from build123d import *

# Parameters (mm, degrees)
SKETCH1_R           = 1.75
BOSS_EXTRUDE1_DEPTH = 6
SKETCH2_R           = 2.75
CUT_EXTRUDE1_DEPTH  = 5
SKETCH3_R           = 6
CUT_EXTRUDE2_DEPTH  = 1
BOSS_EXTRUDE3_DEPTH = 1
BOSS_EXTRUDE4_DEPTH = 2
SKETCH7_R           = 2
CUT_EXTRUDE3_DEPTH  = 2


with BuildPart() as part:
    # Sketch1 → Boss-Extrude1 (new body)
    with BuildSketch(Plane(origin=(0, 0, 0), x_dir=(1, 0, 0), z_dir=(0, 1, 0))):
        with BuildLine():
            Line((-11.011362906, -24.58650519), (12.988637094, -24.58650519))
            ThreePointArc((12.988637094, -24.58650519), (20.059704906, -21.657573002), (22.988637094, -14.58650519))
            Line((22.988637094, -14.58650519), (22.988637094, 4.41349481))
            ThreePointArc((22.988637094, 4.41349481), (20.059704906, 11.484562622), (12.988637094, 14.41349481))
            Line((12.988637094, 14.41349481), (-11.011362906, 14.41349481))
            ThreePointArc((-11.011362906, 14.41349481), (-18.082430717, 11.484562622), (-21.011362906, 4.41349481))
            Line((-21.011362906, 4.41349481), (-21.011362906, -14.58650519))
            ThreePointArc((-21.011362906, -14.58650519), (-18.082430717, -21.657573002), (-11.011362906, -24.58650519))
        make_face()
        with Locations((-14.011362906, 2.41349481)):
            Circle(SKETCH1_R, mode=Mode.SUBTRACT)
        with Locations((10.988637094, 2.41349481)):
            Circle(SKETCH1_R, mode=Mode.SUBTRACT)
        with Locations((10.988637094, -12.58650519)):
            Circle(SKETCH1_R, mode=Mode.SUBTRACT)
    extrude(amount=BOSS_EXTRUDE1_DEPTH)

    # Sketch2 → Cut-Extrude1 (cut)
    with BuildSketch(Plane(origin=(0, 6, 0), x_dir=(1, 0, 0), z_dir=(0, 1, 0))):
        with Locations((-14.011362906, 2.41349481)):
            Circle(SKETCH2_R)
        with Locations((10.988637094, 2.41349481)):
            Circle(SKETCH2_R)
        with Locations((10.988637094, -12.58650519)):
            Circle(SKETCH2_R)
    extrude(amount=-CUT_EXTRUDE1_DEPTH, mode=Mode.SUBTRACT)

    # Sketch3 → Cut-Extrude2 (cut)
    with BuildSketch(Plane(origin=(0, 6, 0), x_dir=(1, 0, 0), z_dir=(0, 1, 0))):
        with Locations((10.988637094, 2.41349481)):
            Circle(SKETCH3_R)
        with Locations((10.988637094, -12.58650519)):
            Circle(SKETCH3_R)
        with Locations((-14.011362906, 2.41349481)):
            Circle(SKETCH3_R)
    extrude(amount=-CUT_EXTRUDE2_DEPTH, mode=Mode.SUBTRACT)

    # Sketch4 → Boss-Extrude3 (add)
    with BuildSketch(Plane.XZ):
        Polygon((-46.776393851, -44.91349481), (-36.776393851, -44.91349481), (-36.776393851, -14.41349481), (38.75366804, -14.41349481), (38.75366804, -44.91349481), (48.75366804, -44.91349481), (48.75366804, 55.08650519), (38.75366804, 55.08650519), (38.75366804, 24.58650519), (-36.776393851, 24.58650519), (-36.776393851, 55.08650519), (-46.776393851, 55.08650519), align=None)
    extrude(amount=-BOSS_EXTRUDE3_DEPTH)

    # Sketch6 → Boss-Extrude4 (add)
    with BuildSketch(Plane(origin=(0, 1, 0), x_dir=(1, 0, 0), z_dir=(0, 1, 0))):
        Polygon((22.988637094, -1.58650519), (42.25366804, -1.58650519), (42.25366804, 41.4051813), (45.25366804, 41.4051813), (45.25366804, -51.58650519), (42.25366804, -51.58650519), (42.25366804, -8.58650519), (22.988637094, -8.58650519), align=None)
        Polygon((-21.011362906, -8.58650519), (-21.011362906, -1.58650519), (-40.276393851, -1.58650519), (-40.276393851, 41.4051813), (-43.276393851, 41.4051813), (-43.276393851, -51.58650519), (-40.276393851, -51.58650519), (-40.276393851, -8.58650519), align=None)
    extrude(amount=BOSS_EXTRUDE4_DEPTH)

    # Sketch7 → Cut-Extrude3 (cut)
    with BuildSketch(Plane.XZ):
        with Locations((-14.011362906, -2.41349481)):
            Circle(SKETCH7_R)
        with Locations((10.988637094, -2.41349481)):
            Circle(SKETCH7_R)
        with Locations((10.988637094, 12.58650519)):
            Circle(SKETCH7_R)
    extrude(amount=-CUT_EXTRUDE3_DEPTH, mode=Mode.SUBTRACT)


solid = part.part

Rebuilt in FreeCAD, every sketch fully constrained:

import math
import FreeCAD as App
import Part
import Sketcher
from FreeCAD import Vector
Q = App.Units.Quantity


def add_polygon(sketch, points):
    """Adds a closed chain of lines whose ends are joined by coincident constraints."""
    first, n = sketch.GeometryCount, len(points)
    for a, b in zip(points, points[1:] + points[:1]):
        sketch.addGeometry(Part.LineSegment(App.Vector(*a, 0), App.Vector(*b, 0)), False)
    for i in range(n):
        sketch.addConstraint(Sketcher.Constraint("Coincident", first + i, 2, first + (i + 1) % n, 1))

doc = App.newDocument("Part")
body = doc.addObject("PartDesign::Body", "Body")

sketch1 = body.newObject("Sketcher::SketchObject", "Sketch")
sketch1.AttachmentSupport = (doc.getObject("XZ_Plane"), [""])
sketch1.MapMode = "FlatFace"
sketch1.addGeometry(Part.LineSegment(Vector(-11.011363, 24.586505, 0), Vector(12.988637, 24.586505, 0)), False)
sketch1.addGeometry(Part.ArcOfCircle(Part.Circle(Vector(12.988637, 14.586505, 0), Vector(0, 0, 1), 10), math.radians(0), math.radians(90)), False)
sketch1.addGeometry(Part.LineSegment(Vector(22.988637, 14.586505, 0), Vector(22.988637, -4.413495, 0)), False)
sketch1.addGeometry(Part.ArcOfCircle(Part.Circle(Vector(12.988637, -4.413495, 0), Vector(0, 0, 1), 10), math.radians(-90), math.radians(0)), False)
sketch1.addGeometry(Part.LineSegment(Vector(12.988637, -14.413495, 0), Vector(-11.011363, -14.413495, 0)), False)
sketch1.addGeometry(Part.ArcOfCircle(Part.Circle(Vector(-11.011363, -4.413495, 0), Vector(0, 0, 1), 10), math.radians(-180), math.radians(-90)), False)
sketch1.addGeometry(Part.LineSegment(Vector(-21.011363, -4.413495, 0), Vector(-21.011363, 14.586505, 0)), False)
sketch1.addGeometry(Part.ArcOfCircle(Part.Circle(Vector(-11.011363, 14.586505, 0), Vector(0, 0, 1), 10), math.radians(90), math.radians(180)), False)
sketch1.addGeometry(Part.Circle(Vector(10.988637, 12.586505, 0), Vector(0, 0, 1), 1.75), False)
sketch1.addGeometry(Part.Circle(Vector(-14.011363, -2.413495, 0), Vector(0, 0, 1), 1.75), False)
sketch1.addGeometry(Part.Circle(Vector(10.988637, -2.413495, 0), Vector(0, 0, 1), 1.75), False)
sketch1.addConstraint(Sketcher.Constraint("Tangent", 0, 2, 1, 2))
sketch1.addConstraint(Sketcher.Constraint("Tangent", 1, 1, 2, 1))
sketch1.addConstraint(Sketcher.Constraint("Tangent", 2, 2, 3, 2))
sketch1.addConstraint(Sketcher.Constraint("Tangent", 3, 1, 4, 1))
sketch1.addConstraint(Sketcher.Constraint("Tangent", 4, 2, 5, 2))
sketch1.addConstraint(Sketcher.Constraint("Tangent", 5, 1, 6, 1))
sketch1.addConstraint(Sketcher.Constraint("Tangent", 6, 2, 7, 2))
sketch1.addConstraint(Sketcher.Constraint("Tangent", 7, 1, 0, 1))
sketch1.addConstraint(Sketcher.Constraint("Horizontal", 0))
sketch1.addConstraint(Sketcher.Constraint("Vertical", 2))
sketch1.addConstraint(Sketcher.Constraint("Horizontal", 4))
sketch1.addConstraint(Sketcher.Constraint("Vertical", 6))
sketch1.addConstraint(Sketcher.Constraint("Equal", 1, 3))
sketch1.addConstraint(Sketcher.Constraint("Equal", 3, 5))
sketch1.addConstraint(Sketcher.Constraint("Equal", 5, 7))
sketch1.addConstraint(Sketcher.Constraint("Equal", 8, 9))
sketch1.addConstraint(Sketcher.Constraint("Equal", 9, 10))
sketch1.addConstraint(Sketcher.Constraint("Horizontal", 9, 3, 10, 3))
sketch1.addConstraint(Sketcher.Constraint("Vertical", 8, 3, 10, 3))
sketch1.addConstraint(Sketcher.Constraint("Radius", 1, Q("10 mm")))
sketch1.addConstraint(Sketcher.Constraint("Diameter", 8, Q("3.5 mm")))
sketch1.addConstraint(Sketcher.Constraint("DistanceX", 0, 1, 0, 2, Q("24 mm")))
sketch1.addConstraint(Sketcher.Constraint("DistanceY", 2, 2, 2, 1, Q("19 mm")))
sketch1.addConstraint(Sketcher.Constraint("DistanceX", 8, 3, 1, 3, Q("2 mm")))
sketch1.addConstraint(Sketcher.Constraint("DistanceY", 8, 3, 1, 3, Q("2 mm")))
sketch1.addConstraint(Sketcher.Constraint("DistanceX", 9, 3, 5, 3, Q("3 mm")))
sketch1.addConstraint(Sketcher.Constraint("DistanceY", 5, 3, 9, 3, Q("2 mm")))
sketch1.addConstraint(Sketcher.Constraint("DistanceX", -1, 1, 1, 3, Q("12.988637 mm")))
sketch1.addConstraint(Sketcher.Constraint("DistanceY", -1, 1, 1, 3, Q("14.586505 mm")))
pad1 = body.newObject("PartDesign::Pad", "Pad")
pad1.Profile = sketch1
pad1.Length = 6
pad1.Reversed = True

sketch2 = body.newObject("Sketcher::SketchObject", "Sketch001")
sketch2.AttachmentSupport = (doc.getObject("XZ_Plane"), [""])
sketch2.MapMode = "FlatFace"
sketch2.AttachmentOffset = App.Placement(Vector(0, 0, -6), App.Rotation())
sketch2.addGeometry(Part.Circle(Vector(-14.011363, -2.413495, 0), Vector(0, 0, 1), 2.75), False)
sketch2.addGeometry(Part.Circle(Vector(10.988637, -2.413495, 0), Vector(0, 0, 1), 2.75), False)
sketch2.addGeometry(Part.Circle(Vector(10.988637, 12.586505, 0), Vector(0, 0, 1), 2.75), False)
sketch2.addConstraint(Sketcher.Constraint("Equal", 0, 1))
sketch2.addConstraint(Sketcher.Constraint("Equal", 1, 2))
sketch2.addConstraint(Sketcher.Constraint("Horizontal", 0, 3, 1, 3))
sketch2.addConstraint(Sketcher.Constraint("Vertical", 1, 3, 2, 3))
sketch2.addConstraint(Sketcher.Constraint("Diameter", 0, Q("5.5 mm")))
sketch2.addConstraint(Sketcher.Constraint("DistanceX", 0, 3, 1, 3, Q("25 mm")))
sketch2.addConstraint(Sketcher.Constraint("DistanceY", 1, 3, 2, 3, Q("15 mm")))
sketch2.addConstraint(Sketcher.Constraint("DistanceX", 0, 3, -1, 1, Q("14.011363 mm")))
sketch2.addConstraint(Sketcher.Constraint("DistanceY", 0, 3, -1, 1, Q("2.413495 mm")))
pocket1 = body.newObject("PartDesign::Pocket", "Pocket")
pocket1.Profile = sketch2
pocket1.Length = 5
pocket1.Reversed = True

sketch3 = body.newObject("Sketcher::SketchObject", "Sketch002")
sketch3.AttachmentSupport = (doc.getObject("XZ_Plane"), [""])
sketch3.MapMode = "FlatFace"
sketch3.AttachmentOffset = App.Placement(Vector(0, 0, -6), App.Rotation())
sketch3.addGeometry(Part.Circle(Vector(10.988637, -2.413495, 0), Vector(0, 0, 1), 6), False)
sketch3.addGeometry(Part.Circle(Vector(10.988637, 12.586505, 0), Vector(0, 0, 1), 6), False)
sketch3.addGeometry(Part.Circle(Vector(-14.011363, -2.413495, 0), Vector(0, 0, 1), 6), False)
sketch3.addConstraint(Sketcher.Constraint("Equal", 0, 1))
sketch3.addConstraint(Sketcher.Constraint("Equal", 1, 2))
sketch3.addConstraint(Sketcher.Constraint("Horizontal", 0, 3, 2, 3))
sketch3.addConstraint(Sketcher.Constraint("Vertical", 0, 3, 1, 3))
sketch3.addConstraint(Sketcher.Constraint("Diameter", 0, Q("12 mm")))
sketch3.addConstraint(Sketcher.Constraint("DistanceY", 0, 3, 1, 3, Q("15 mm")))
sketch3.addConstraint(Sketcher.Constraint("DistanceX", 2, 3, 0, 3, Q("25 mm")))
sketch3.addConstraint(Sketcher.Constraint("DistanceX", -1, 1, 0, 3, Q("10.988637 mm")))
sketch3.addConstraint(Sketcher.Constraint("DistanceY", 0, 3, -1, 1, Q("2.413495 mm")))
pocket2 = body.newObject("PartDesign::Pocket", "Pocket001")
pocket2.Profile = sketch3
pocket2.Length = 1
pocket2.Reversed = True

sketch4 = body.newObject("Sketcher::SketchObject", "Sketch003")
sketch4.AttachmentSupport = (doc.getObject("XZ_Plane"), [""])
sketch4.MapMode = "FlatFace"
add_polygon(sketch4, [(-46.776394, -44.913495), (-36.776394, -44.913495), (-36.776394, -14.413495), (38.753668, -14.413495), (38.753668, -44.913495), (48.753668, -44.913495), (48.753668, 55.086505), (38.753668, 55.086505), (38.753668, 24.586505), (-36.776394, 24.586505), (-36.776394, 55.086505), (-46.776394, 55.086505)])
sketch4.addConstraint(Sketcher.Constraint("Horizontal", 0))
sketch4.addConstraint(Sketcher.Constraint("Vertical", 1))
sketch4.addConstraint(Sketcher.Constraint("Horizontal", 2))
sketch4.addConstraint(Sketcher.Constraint("Vertical", 3))
sketch4.addConstraint(Sketcher.Constraint("Horizontal", 4))
sketch4.addConstraint(Sketcher.Constraint("Vertical", 5))
sketch4.addConstraint(Sketcher.Constraint("Horizontal", 6))
sketch4.addConstraint(Sketcher.Constraint("Vertical", 7))
sketch4.addConstraint(Sketcher.Constraint("Horizontal", 8))
sketch4.addConstraint(Sketcher.Constraint("Vertical", 9))
sketch4.addConstraint(Sketcher.Constraint("Horizontal", 10))
sketch4.addConstraint(Sketcher.Constraint("Vertical", 11))
sketch4.addConstraint(Sketcher.Constraint("Horizontal", 0, 2, 3, 2))
sketch4.addConstraint(Sketcher.Constraint("Horizontal", 6, 2, 9, 2))
sketch4.addConstraint(Sketcher.Constraint("Vertical", 3, 2, 6, 2))
sketch4.addConstraint(Sketcher.Constraint("Vertical", 1, 2, 8, 2))
sketch4.addConstraint(Sketcher.Constraint("Equal", 0, 4))
sketch4.addConstraint(Sketcher.Constraint("Equal", 3, 7))
sketch4.addConstraint(Sketcher.Constraint("DistanceX", 0, 1, 0, 2, Q("10 mm")))
sketch4.addConstraint(Sketcher.Constraint("DistanceY", 5, 1, 5, 2, Q("100 mm")))
sketch4.addConstraint(Sketcher.Constraint("DistanceY", 1, 1, 1, 2, Q("30.5 mm")))
sketch4.addConstraint(Sketcher.Constraint("DistanceX", 2, 1, 2, 2, Q("75.530062 mm")))
sketch4.addConstraint(Sketcher.Constraint("DistanceX", -1, 1, 2, 2, Q("38.753668 mm")))
sketch4.addConstraint(Sketcher.Constraint("DistanceY", 0, 2, -1, 1, Q("44.913495 mm")))
pad2 = body.newObject("PartDesign::Pad", "Pad001")
pad2.Profile = sketch4
pad2.Length = 1
pad2.Reversed = True

sketch5 = body.newObject("Sketcher::SketchObject", "Sketch004")
sketch5.AttachmentSupport = (doc.getObject("XZ_Plane"), [""])
sketch5.MapMode = "FlatFace"
sketch5.AttachmentOffset = App.Placement(Vector(0, 0, -1), App.Rotation())
add_polygon(sketch5, [(42.253668, 1.586505), (22.988637, 1.586505), (22.988637, 8.586505), (42.253668, 8.586505), (42.253668, 51.586505), (45.253668, 51.586505), (45.253668, -41.405181), (42.253668, -41.405181)])
add_polygon(sketch5, [(-21.011363, 8.586505), (-21.011363, 1.586505), (-40.276394, 1.586505), (-40.276394, -41.405181), (-43.276394, -41.405181), (-43.276394, 51.586505), (-40.276394, 51.586505), (-40.276394, 8.586505)])
sketch5.addConstraint(Sketcher.Constraint("Horizontal", 0))
sketch5.addConstraint(Sketcher.Constraint("Vertical", 1))
sketch5.addConstraint(Sketcher.Constraint("Horizontal", 2))
sketch5.addConstraint(Sketcher.Constraint("Vertical", 3))
sketch5.addConstraint(Sketcher.Constraint("Horizontal", 4))
sketch5.addConstraint(Sketcher.Constraint("Vertical", 5))
sketch5.addConstraint(Sketcher.Constraint("Horizontal", 6))
sketch5.addConstraint(Sketcher.Constraint("Vertical", 7))
sketch5.addConstraint(Sketcher.Constraint("Vertical", 8))
sketch5.addConstraint(Sketcher.Constraint("Horizontal", 9))
sketch5.addConstraint(Sketcher.Constraint("Vertical", 10))
sketch5.addConstraint(Sketcher.Constraint("Horizontal", 11))
sketch5.addConstraint(Sketcher.Constraint("Vertical", 12))
sketch5.addConstraint(Sketcher.Constraint("Horizontal", 13))
sketch5.addConstraint(Sketcher.Constraint("Vertical", 14))
sketch5.addConstraint(Sketcher.Constraint("Horizontal", 15))
sketch5.addConstraint(Sketcher.Constraint("Horizontal", 7, 2, 8, 2))
sketch5.addConstraint(Sketcher.Constraint("Horizontal", 6, 2, 10, 2))
sketch5.addConstraint(Sketcher.Constraint("Horizontal", 4, 2, 12, 2))
sketch5.addConstraint(Sketcher.Constraint("Horizontal", 2, 2, 14, 2))
sketch5.addConstraint(Sketcher.Constraint("Vertical", 3, 2, 6, 2))
sketch5.addConstraint(Sketcher.Constraint("Vertical", 10, 2, 13, 2))
sketch5.addConstraint(Sketcher.Constraint("Equal", 2, 9))
sketch5.addConstraint(Sketcher.Constraint("Equal", 6, 11))
sketch5.addConstraint(Sketcher.Constraint("DistanceX", 4, 1, 4, 2, Q("3 mm")))
sketch5.addConstraint(Sketcher.Constraint("DistanceY", 1, 1, 1, 2, Q("7 mm")))
sketch5.addConstraint(Sketcher.Constraint("DistanceY", 3, 1, 3, 2, Q("43 mm")))
sketch5.addConstraint(Sketcher.Constraint("DistanceX", 8, 2, 0, 2, Q("44 mm")))
sketch5.addConstraint(Sketcher.Constraint("DistanceX", 0, 2, 0, 1, Q("19.265031 mm")))
sketch5.addConstraint(Sketcher.Constraint("DistanceY", 5, 2, 5, 1, Q("92.991686 mm")))
sketch5.addConstraint(Sketcher.Constraint("DistanceX", -1, 1, 2, 2, Q("42.253668 mm")))
sketch5.addConstraint(Sketcher.Constraint("DistanceY", 5, 2, -1, 1, Q("41.405181 mm")))
pad3 = body.newObject("PartDesign::Pad", "Pad002")
pad3.Profile = sketch5
pad3.Length = 2
pad3.Reversed = True

sketch6 = body.newObject("Sketcher::SketchObject", "Sketch005")
sketch6.AttachmentSupport = (doc.getObject("XZ_Plane"), [""])
sketch6.MapMode = "FlatFace"
sketch6.addGeometry(Part.Circle(Vector(-14.011363, -2.413495, 0), Vector(0, 0, 1), 2), False)
sketch6.addGeometry(Part.Circle(Vector(10.988637, -2.413495, 0), Vector(0, 0, 1), 2), False)
sketch6.addGeometry(Part.Circle(Vector(10.988637, 12.586505, 0), Vector(0, 0, 1), 2), False)
sketch6.addConstraint(Sketcher.Constraint("Equal", 0, 1))
sketch6.addConstraint(Sketcher.Constraint("Equal", 1, 2))
sketch6.addConstraint(Sketcher.Constraint("Horizontal", 0, 3, 1, 3))
sketch6.addConstraint(Sketcher.Constraint("Vertical", 1, 3, 2, 3))
sketch6.addConstraint(Sketcher.Constraint("Diameter", 0, Q("4 mm")))
sketch6.addConstraint(Sketcher.Constraint("DistanceX", 0, 3, 1, 3, Q("25 mm")))
sketch6.addConstraint(Sketcher.Constraint("DistanceY", 1, 3, 2, 3, Q("15 mm")))
sketch6.addConstraint(Sketcher.Constraint("DistanceX", 0, 3, -1, 1, Q("14.011363 mm")))
sketch6.addConstraint(Sketcher.Constraint("DistanceY", 0, 3, -1, 1, Q("2.413495 mm")))
pocket3 = body.newObject("PartDesign::Pocket", "Pocket002")
pocket3.Profile = sketch6
pocket3.Length = 2

doc.recompute()
